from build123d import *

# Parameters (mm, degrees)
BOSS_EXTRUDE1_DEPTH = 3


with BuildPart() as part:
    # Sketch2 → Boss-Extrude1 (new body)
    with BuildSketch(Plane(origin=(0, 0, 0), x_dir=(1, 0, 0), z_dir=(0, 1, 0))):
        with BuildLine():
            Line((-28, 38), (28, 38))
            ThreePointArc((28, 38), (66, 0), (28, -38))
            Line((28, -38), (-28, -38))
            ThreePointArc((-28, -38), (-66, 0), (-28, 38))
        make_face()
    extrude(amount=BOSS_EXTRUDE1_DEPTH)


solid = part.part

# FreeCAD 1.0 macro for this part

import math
import FreeCAD as App
import Part
import Sketcher

doc = App.newDocument("Part")
body = doc.addObject("PartDesign::Body", "Body")

sketch1 = body.newObject("Sketcher::SketchObject", "Sketch")
sketch1.AttachmentSupport = (doc.getObject("XZ_Plane"), [""])
sketch1.MapMode = "FlatFace"
sketch1.addGeometry(Part.LineSegment(App.Vector(28, -38, 0), App.Vector(-28, -38, 0)), False)
sketch1.addGeometry(Part.ArcOfCircle(Part.Circle(App.Vector(-28, 0, 0), App.Vector(0, 0, 1), 38), math.radians(90), math.radians(270)), False)
sketch1.addGeometry(Part.LineSegment(App.Vector(-28, 38, 0), App.Vector(28, 38, 0)), False)
sketch1.addGeometry(Part.ArcOfCircle(Part.Circle(App.Vector(28, 0, 0), App.Vector(0, 0, 1), 38), math.radians(-90), math.radians(90)), False)
sketch1.addConstraint(Sketcher.Constraint("Tangent", 0, 2, 1, 2))
sketch1.addConstraint(Sketcher.Constraint("Tangent", 1, 1, 2, 1))
sketch1.addConstraint(Sketcher.Constraint("Tangent", 2, 2, 3, 2))
sketch1.addConstraint(Sketcher.Constraint("Tangent", 3, 1, 0, 1))
sketch1.addConstraint(Sketcher.Constraint("Horizontal", 0))
sketch1.addConstraint(Sketcher.Constraint("Horizontal", 2))
sketch1.addConstraint(Sketcher.Constraint("Symmetric", 1, 3, 3, 3, -1, 1))
sketch1.addConstraint(Sketcher.Constraint("Radius", 1, 38.0))
sketch1.addConstraint(Sketcher.Constraint("DistanceX", 0, 2, 0, 1, 56.0))
pad1 = body.newObject("PartDesign::Pad", "Pad")
pad1.Profile = sketch1
pad1.Length = 3
pad1.Reversed = True

doc.recompute()
